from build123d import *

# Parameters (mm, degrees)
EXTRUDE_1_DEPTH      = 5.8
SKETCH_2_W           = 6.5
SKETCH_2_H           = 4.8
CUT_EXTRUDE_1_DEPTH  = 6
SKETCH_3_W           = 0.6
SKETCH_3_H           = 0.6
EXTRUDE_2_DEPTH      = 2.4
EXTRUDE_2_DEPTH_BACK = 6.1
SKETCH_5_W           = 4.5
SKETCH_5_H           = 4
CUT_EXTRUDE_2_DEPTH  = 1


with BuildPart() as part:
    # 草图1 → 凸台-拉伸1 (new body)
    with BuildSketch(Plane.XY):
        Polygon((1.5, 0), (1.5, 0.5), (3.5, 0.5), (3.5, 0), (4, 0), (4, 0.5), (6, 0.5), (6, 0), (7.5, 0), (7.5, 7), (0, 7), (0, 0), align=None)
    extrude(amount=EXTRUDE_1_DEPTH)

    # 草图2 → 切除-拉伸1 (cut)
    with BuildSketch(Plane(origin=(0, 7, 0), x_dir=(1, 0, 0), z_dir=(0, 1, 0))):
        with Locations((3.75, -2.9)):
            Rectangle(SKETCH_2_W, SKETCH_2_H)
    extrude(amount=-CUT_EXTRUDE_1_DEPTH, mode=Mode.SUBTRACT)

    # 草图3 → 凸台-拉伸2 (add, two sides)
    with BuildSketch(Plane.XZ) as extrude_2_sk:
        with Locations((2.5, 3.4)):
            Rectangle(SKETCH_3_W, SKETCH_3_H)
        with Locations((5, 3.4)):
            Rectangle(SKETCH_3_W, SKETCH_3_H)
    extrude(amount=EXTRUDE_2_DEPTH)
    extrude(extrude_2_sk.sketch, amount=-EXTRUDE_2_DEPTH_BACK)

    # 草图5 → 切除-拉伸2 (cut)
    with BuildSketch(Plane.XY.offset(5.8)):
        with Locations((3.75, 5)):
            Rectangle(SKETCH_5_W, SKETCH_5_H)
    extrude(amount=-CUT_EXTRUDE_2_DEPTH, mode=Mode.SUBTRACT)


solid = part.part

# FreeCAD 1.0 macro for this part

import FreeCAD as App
import Part
import Sketcher

V = App.Vector
Q = App.Units.Quantity

doc = App.newDocument("Part")
params = doc.addObject("Spreadsheet::Sheet", "Params")
for row, (alias, value) in enumerate([
    ("sketch1_width", "2 mm"),
    ("sketch1_height", "7 mm"),
    ("sketch1_width2", "0.5 mm"),
    ("sketch1_width3", "1.5 mm"),
    ("pad1_length", "5.8 mm"),
    ("sketch2_width", "6.5 mm"),
    ("sketch2_height", "4.8 mm"),
    ("pocket1_length", "6 mm"),
    ("sketch3_width", "0.6 mm"),
    ("pad2_length", "2.4 mm"),
    ("pad2_length2", "6.1 mm"),
    ("sketch4_height", "4 mm"),
    ("sketch4_width", "4.5 mm"),
    ("pocket2_length", "1 mm"),
], start=1):
    params.set(f"A{row}", alias)
    params.set(f"B{row}", "=" + value)
    params.setAlias(f"B{row}", alias)

body = doc.addObject("PartDesign::Body", "Body")

sketch1 = body.newObject("Sketcher::SketchObject", "Sketch")
sketch1.AttachmentSupport = (doc.getObject("XY_Plane"), [""])
sketch1.MapMode = "FlatFace"
sketch1.addGeometry(Part.LineSegment(V(1.5, 0, 0), V(1.5, 0.5, 0)), False)
sketch1.addGeometry(Part.LineSegment(V(1.5, 0.5, 0), V(3.5, 0.5, 0)), False)
sketch1.addGeometry(Part.LineSegment(V(3.5, 0.5, 0), V(3.5, 0, 0)), False)
sketch1.addGeometry(Part.LineSegment(V(3.5, 0, 0), V(4, 0, 0)), False)
sketch1.addGeometry(Part.LineSegment(V(4, 0, 0), V(4, 0.5, 0)), False)
sketch1.addGeometry(Part.LineSegment(V(4, 0.5, 0), V(6, 0.5, 0)), False)
sketch1.addGeometry(Part.LineSegment(V(6, 0.5, 0), V(6, 0, 0)), False)
sketch1.addGeometry(Part.LineSegment(V(6, 0, 0), V(7.5, 0, 0)), False)
sketch1.addGeometry(Part.LineSegment(V(7.5, 0, 0), V(7.5, 7, 0)), False)
sketch1.addGeometry(Part.LineSegment(V(7.5, 7, 0), V(0, 7, 0)), False)
sketch1.addGeometry(Part.LineSegment(V(0, 7, 0), V(0, 0, 0)), False)
sketch1.addGeometry(Part.LineSegment(V(0, 0, 0), V(1.5, 0, 0)), False)
sketch1.addConstraint(Sketcher.Constraint("Coincident", 0, 2, 1, 1))
sketch1.addConstraint(Sketcher.Constraint("Coincident", 1, 2, 2, 1))
sketch1.addConstraint(Sketcher.Constraint("Coincident", 2, 2, 3, 1))
sketch1.addConstraint(Sketcher.Constraint("Coincident", 3, 2, 4, 1))
sketch1.addConstraint(Sketcher.Constraint("Coincident", 4, 2, 5, 1))
sketch1.addConstraint(Sketcher.Constraint("Coincident", 5, 2, 6, 1))
sketch1.addConstraint(Sketcher.Constraint("Coincident", 6, 2, 7, 1))
sketch1.addConstraint(Sketcher.Constraint("Coincident", 7, 2, 8, 1))
sketch1.addConstraint(Sketcher.Constraint("Coincident", 8, 2, 9, 1))
sketch1.addConstraint(Sketcher.Constraint("Coincident", 9, 2, 10, 1))
sketch1.addConstraint(Sketcher.Constraint("Coincident", 10, 2, 11, 1))
sketch1.addConstraint(Sketcher.Constraint("Coincident", 11, 2, 0, 1))
sketch1.addConstraint(Sketcher.Constraint("Vertical", 0))
sketch1.addConstraint(Sketcher.Constraint("Horizontal", 1))
sketch1.addConstraint(Sketcher.Constraint("Vertical", 2))
sketch1.addConstraint(Sketcher.Constraint("Horizontal", 3))
sketch1.addConstraint(Sketcher.Constraint("Vertical", 4))
sketch1.addConstraint(Sketcher.Constraint("Horizontal", 5))
sketch1.addConstraint(Sketcher.Constraint("Vertical", 6))
sketch1.addConstraint(Sketcher.Constraint("Horizontal", 7))
sketch1.addConstraint(Sketcher.Constraint("Vertical", 8))
sketch1.addConstraint(Sketcher.Constraint("Horizontal", 9))
sketch1.addConstraint(Sketcher.Constraint("Vertical", 10))
sketch1.addConstraint(Sketcher.Constraint("Horizontal", 11))
sketch1.addConstraint(Sketcher.Constraint("Coincident", 10, 2, -1, 1))
sketch1.addConstraint(Sketcher.Constraint("PointOnObject", 2, 2, -1))
sketch1.addConstraint(Sketcher.Constraint("PointOnObject", 6, 2, -1))
sketch1.addConstraint(Sketcher.Constraint("Horizontal", 1, 2, 4, 2))
sketch1.addConstraint(Sketcher.Constraint("Equal", 1, 5))
sketch1.addConstraint(Sketcher.Constraint("Equal", 7, 11))
sketch1.addConstraint(Sketcher.Constraint("Equal", 3, 0))
sketch1.addConstraint(Sketcher.Constraint("DistanceX", 1, 1, 1, 2, Q("2 mm")))
sketch1.addConstraint(Sketcher.Constraint("DistanceY", 8, 1, 8, 2, Q("7 mm")))
sketch1.addConstraint(Sketcher.Constraint("DistanceX", 3, 1, 3, 2, Q("0.5 mm")))
sketch1.addConstraint(Sketcher.Constraint("DistanceX", 7, 1, 7, 2, Q("1.5 mm")))
sketch1.setExpression("Constraints[31]", "Params.sketch1_width")
sketch1.setExpression("Constraints[32]", "Params.sketch1_height")
sketch1.setExpression("Constraints[33]", "Params.sketch1_width2")
sketch1.setExpression("Constraints[34]", "Params.sketch1_width3")
pad1 = body.newObject("PartDesign::Pad", "Pad")
pad1.Profile = sketch1
pad1.setExpression("Length", "Params.pad1_length")

sketch2 = body.newObject("Sketcher::SketchObject", "Sketch001")
sketch2.AttachmentSupport = (doc.getObject("XZ_Plane"), [""])
sketch2.MapMode = "FlatFace"
sketch2.AttachmentOffset = App.Placement(V(0, 0, -7), App.Rotation())
sketch2.addGeometry(Part.LineSegment(V(0.5, 0.5, 0), V(0.5, 5.3, 0)), False)
sketch2.addGeometry(Part.LineSegment(V(0.5, 5.3, 0), V(7, 5.3, 0)), False)
sketch2.addGeometry(Part.LineSegment(V(7, 5.3, 0), V(7, 0.5, 0)), False)
sketch2.addGeometry(Part.LineSegment(V(7, 0.5, 0), V(0.5, 0.5, 0)), False)
sketch2.addConstraint(Sketcher.Constraint("Coincident", 0, 2, 1, 1))
sketch2.addConstraint(Sketcher.Constraint("Coincident", 1, 2, 2, 1))
sketch2.addConstraint(Sketcher.Constraint("Coincident", 2, 2, 3, 1))
sketch2.addConstraint(Sketcher.Constraint("Coincident", 3, 2, 0, 1))
sketch2.addConstraint(Sketcher.Constraint("Vertical", 0))
sketch2.addConstraint(Sketcher.Constraint("Horizontal", 1))
sketch2.addConstraint(Sketcher.Constraint("Vertical", 2))
sketch2.addConstraint(Sketcher.Constraint("Horizontal", 3))
sketch2.addConstraint(Sketcher.Constraint("DistanceX", 1, 1, 1, 2, Q("6.5 mm")))
sketch2.addConstraint(Sketcher.Constraint("DistanceY", 0, 1, 0, 2, Q("4.8 mm")))
sketch2.addConstraint(Sketcher.Constraint("DistanceX", -1, 1, 1, 2, Q("7 mm")))
sketch2.addConstraint(Sketcher.Constraint("DistanceY", -1, 1, 0, 2, Q("5.3 mm")))
sketch2.setExpression("Constraints[8]", "Params.sketch2_width")
sketch2.setExpression("Constraints[9]", "Params.sketch2_height")
pocket1 = body.newObject("PartDesign::Pocket", "Pocket")
pocket1.Profile = sketch2
pocket1.setExpression("Length", "Params.pocket1_length")
pocket1.Reversed = True

sketch3 = body.newObject("Sketcher::SketchObject", "Sketch002")
sketch3.AttachmentSupport = (doc.getObject("XZ_Plane"), [""])
sketch3.MapMode = "FlatFace"
sketch3.addGeometry(Part.LineSegment(V(2.2, 3.7, 0), V(2.2, 3.1, 0)), False)
sketch3.addGeometry(Part.LineSegment(V(2.2, 3.1, 0), V(2.8, 3.1, 0)), False)
sketch3.addGeometry(Part.LineSegment(V(2.8, 3.1, 0), V(2.8, 3.7, 0)), False)
sketch3.addGeometry(Part.LineSegment(V(2.8, 3.7, 0), V(2.2, 3.7, 0)), False)
sketch3.addGeometry(Part.LineSegment(V(4.7, 3.7, 0), V(4.7, 3.1, 0)), False)
sketch3.addGeometry(Part.LineSegment(V(4.7, 3.1, 0), V(5.3, 3.1, 0)), False)
sketch3.addGeometry(Part.LineSegment(V(5.3, 3.1, 0), V(5.3, 3.7, 0)), False)
sketch3.addGeometry(Part.LineSegment(V(5.3, 3.7, 0), V(4.7, 3.7, 0)), False)
sketch3.addConstraint(Sketcher.Constraint("Coincident", 0, 2, 1, 1))
sketch3.addConstraint(Sketcher.Constraint("Coincident", 1, 2, 2, 1))
sketch3.addConstraint(Sketcher.Constraint("Coincident", 2, 2, 3, 1))
sketch3.addConstraint(Sketcher.Constraint("Coincident", 3, 2, 0, 1))
sketch3.addConstraint(Sketcher.Constraint("Coincident", 4, 2, 5, 1))
sketch3.addConstraint(Sketcher.Constraint("Coincident", 5, 2, 6, 1))
sketch3.addConstraint(Sketcher.Constraint("Coincident", 6, 2, 7, 1))
sketch3.addConstraint(Sketcher.Constraint("Coincident", 7, 2, 4, 1))
sketch3.addConstraint(Sketcher.Constraint("Vertical", 0))
sketch3.addConstraint(Sketcher.Constraint("Horizontal", 1))
sketch3.addConstraint(Sketcher.Constraint("Vertical", 2))
sketch3.addConstraint(Sketcher.Constraint("Horizontal", 3))
sketch3.addConstraint(Sketcher.Constraint("Vertical", 4))
sketch3.addConstraint(Sketcher.Constraint("Horizontal", 5))
sketch3.addConstraint(Sketcher.Constraint("Vertical", 6))
sketch3.addConstraint(Sketcher.Constraint("Horizontal", 7))
sketch3.addConstraint(Sketcher.Constraint("Horizontal", 1, 2, 4, 2))
sketch3.addConstraint(Sketcher.Constraint("Horizontal", 3, 2, 6, 2))
sketch3.addConstraint(Sketcher.Constraint("Equal", 3, 5))
sketch3.addConstraint(Sketcher.Constraint("Equal", 7, 0))
sketch3.addConstraint(Sketcher.Constraint("DistanceX", 1, 1, 1, 2, Q("0.6 mm")))
sketch3.addConstraint(Sketcher.Constraint("DistanceX", -1, 1, 0, 2, Q("2.2 mm")))
sketch3.addConstraint(Sketcher.Constraint("DistanceY", -1, 1, 0, 2, Q("3.1 mm")))
sketch3.addConstraint(Sketcher.Constraint("DistanceX", -1, 1, 4, 2, Q("4.7 mm")))
sketch3.setExpression("Constraints[20]", "Params.sketch3_width")
pad2 = body.newObject("PartDesign::Pad", "Pad001")
pad2.Profile = sketch3
pad2.Type = "TwoLengths"
pad2.setExpression("Length", "Params.pad2_length")
pad2.setExpression("Length2", "Params.pad2_length2")

sketch4 = body.newObject("Sketcher::SketchObject", "Sketch003")
sketch4.AttachmentSupport = (doc.getObject("XY_Plane"), [""])
sketch4.MapMode = "FlatFace"
sketch4.AttachmentOffset = App.Placement(V(0, 0, 5.8), App.Rotation())
sketch4.addGeometry(Part.LineSegment(V(1.5, 7, 0), V(1.5, 3, 0)), False)
sketch4.addGeometry(Part.LineSegment(V(1.5, 3, 0), V(6, 3, 0)), False)
sketch4.addGeometry(Part.LineSegment(V(6, 3, 0), V(6, 7, 0)), False)
sketch4.addGeometry(Part.LineSegment(V(6, 7, 0), V(1.5, 7, 0)), False)
sketch4.addConstraint(Sketcher.Constraint("Coincident", 0, 2, 1, 1))
sketch4.addConstraint(Sketcher.Constraint("Coincident", 1, 2, 2, 1))
sketch4.addConstraint(Sketcher.Constraint("Coincident", 2, 2, 3, 1))
sketch4.addConstraint(Sketcher.Constraint("Coincident", 3, 2, 0, 1))
sketch4.addConstraint(Sketcher.Constraint("Vertical", 0))
sketch4.addConstraint(Sketcher.Constraint("Horizontal", 1))
sketch4.addConstraint(Sketcher.Constraint("Vertical", 2))
sketch4.addConstraint(Sketcher.Constraint("Horizontal", 3))
sketch4.addConstraint(Sketcher.Constraint("DistanceY", 0, 2, 0, 1, Q("4 mm")))
sketch4.addConstraint(Sketcher.Constraint("DistanceX", 1, 1, 1, 2, Q("4.5 mm")))
sketch4.addConstraint(Sketcher.Constraint("DistanceY", -1, 1, 0, 2, Q("3 mm")))
sketch4.addConstraint(Sketcher.Constraint("DistanceX", -1, 1, 1, 2, Q("6 mm")))
sketch4.setExpression("Constraints[8]", "Params.sketch4_height")
sketch4.setExpression("Constraints[9]", "Params.sketch4_width")
pocket2 = body.newObject("PartDesign::Pocket", "Pocket001")
pocket2.Profile = sketch4
pocket2.setExpression("Length", "Params.pocket2_length")

doc.recompute()
